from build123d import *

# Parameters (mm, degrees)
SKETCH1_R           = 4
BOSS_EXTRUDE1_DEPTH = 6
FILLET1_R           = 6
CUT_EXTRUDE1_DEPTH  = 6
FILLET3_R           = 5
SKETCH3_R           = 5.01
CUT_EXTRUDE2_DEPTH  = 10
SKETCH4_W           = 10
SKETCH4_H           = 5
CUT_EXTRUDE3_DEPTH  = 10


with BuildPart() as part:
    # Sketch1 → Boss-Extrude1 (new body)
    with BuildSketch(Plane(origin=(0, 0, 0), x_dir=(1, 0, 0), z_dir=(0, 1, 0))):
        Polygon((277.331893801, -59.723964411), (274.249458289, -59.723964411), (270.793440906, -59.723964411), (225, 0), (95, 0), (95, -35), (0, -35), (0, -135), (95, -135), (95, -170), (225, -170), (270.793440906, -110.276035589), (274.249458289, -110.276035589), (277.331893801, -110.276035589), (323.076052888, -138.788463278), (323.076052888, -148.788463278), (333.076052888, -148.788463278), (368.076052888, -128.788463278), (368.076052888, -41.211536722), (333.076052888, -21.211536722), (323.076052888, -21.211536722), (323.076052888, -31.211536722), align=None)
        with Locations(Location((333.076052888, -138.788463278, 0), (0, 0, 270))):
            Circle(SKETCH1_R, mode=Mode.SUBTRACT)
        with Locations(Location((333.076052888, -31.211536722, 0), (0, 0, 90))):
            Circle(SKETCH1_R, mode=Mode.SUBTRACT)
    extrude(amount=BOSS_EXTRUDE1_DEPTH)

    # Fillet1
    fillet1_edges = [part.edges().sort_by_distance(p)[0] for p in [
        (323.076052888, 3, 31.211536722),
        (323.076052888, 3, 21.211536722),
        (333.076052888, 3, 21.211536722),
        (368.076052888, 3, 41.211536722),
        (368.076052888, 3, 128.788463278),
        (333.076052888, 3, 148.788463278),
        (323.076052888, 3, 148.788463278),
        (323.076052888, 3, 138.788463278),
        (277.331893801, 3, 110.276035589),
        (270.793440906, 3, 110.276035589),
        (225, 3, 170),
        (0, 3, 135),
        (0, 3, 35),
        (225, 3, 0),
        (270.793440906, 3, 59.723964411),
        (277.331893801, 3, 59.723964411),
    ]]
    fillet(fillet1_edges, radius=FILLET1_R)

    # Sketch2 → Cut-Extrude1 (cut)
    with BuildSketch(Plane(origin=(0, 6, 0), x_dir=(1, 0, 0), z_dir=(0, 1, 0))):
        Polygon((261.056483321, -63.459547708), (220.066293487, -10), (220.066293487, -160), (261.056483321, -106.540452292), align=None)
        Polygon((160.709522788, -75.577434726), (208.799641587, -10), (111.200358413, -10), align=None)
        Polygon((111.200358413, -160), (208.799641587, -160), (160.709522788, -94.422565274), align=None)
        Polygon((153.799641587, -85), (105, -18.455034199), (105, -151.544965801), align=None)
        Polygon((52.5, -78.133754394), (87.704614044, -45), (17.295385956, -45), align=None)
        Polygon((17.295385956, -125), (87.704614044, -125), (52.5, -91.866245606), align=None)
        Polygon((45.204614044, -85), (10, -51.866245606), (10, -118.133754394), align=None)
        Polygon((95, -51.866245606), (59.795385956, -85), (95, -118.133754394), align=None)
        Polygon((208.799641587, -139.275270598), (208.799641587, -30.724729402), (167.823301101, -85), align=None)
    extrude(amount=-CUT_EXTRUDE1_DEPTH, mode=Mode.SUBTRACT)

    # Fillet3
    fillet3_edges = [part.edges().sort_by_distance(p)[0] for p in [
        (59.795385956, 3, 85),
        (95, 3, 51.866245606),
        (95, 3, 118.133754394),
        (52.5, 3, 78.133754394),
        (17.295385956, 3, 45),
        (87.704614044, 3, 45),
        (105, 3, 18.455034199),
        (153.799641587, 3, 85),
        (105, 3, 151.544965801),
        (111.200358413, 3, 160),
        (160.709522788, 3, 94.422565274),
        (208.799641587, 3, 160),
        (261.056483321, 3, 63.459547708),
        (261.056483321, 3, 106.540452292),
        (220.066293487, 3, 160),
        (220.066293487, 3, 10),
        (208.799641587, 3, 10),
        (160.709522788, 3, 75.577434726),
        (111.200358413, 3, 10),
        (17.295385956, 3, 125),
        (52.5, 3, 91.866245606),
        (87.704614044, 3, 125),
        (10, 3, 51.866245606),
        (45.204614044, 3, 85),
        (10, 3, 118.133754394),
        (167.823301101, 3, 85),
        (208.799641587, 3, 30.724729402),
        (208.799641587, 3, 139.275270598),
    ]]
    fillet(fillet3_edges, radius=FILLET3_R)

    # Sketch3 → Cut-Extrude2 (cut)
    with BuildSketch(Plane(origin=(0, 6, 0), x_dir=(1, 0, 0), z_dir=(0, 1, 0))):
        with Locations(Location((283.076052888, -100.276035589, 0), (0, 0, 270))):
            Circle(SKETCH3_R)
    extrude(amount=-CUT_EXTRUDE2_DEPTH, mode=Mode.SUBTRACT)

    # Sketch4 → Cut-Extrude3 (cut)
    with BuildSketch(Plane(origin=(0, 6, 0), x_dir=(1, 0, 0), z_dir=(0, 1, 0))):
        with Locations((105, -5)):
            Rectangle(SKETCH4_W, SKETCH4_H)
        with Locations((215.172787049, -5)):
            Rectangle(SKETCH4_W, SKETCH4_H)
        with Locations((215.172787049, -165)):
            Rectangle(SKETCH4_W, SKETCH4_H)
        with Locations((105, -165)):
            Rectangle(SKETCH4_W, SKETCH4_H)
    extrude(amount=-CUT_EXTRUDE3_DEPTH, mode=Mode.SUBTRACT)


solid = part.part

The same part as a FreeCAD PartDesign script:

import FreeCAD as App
import Part
import Sketcher
from FreeCAD import Vector
Q = App.Units.Quantity


def edges_at(feature, points):
    """Names of the edges that pass closest to the given points."""
    edges = feature.Shape.Edges
    near = lambda p: min(range(len(edges)), key=lambda i: edges[i].distToShape(Part.Vertex(*p))[0])
    return sorted({f"Edge{near(p) + 1}" for p in points})

doc = App.newDocument("Part")
body = doc.addObject("PartDesign::Body", "Body")

sketch1 = doc.addObject("Sketcher::SketchObject", "Sketch")
body.addObject(sketch1)
sketch1.AttachmentSupport = (doc.XZ_Plane, [""])
sketch1.MapMode = "FlatFace"
sketch1.addGeometry(Part.LineSegment(Vector(277.3, 59.7, 0), Vector(270.8, 59.7, 0)), False)
sketch1.addGeometry(Part.LineSegment(Vector(270.8, 59.7, 0), Vector(225, 0, 0)), False)
sketch1.addGeometry(Part.LineSegment(Vector(225, 0, 0), Vector(95, 0, 0)), False)
sketch1.addGeometry(Part.LineSegment(Vector(95, 0, 0), Vector(95, 35, 0)), False)
sketch1.addGeometry(Part.LineSegment(Vector(95, 35, 0), Vector(0, 35, 0)), False)
sketch1.addGeometry(Part.LineSegment(Vector(0, 35, 0), Vector(0, 135, 0)), False)
sketch1.addGeometry(Part.LineSegment(Vector(0, 135, 0), Vector(95, 135, 0)), False)
sketch1.addGeometry(Part.LineSegment(Vector(95, 135, 0), Vector(95, 170, 0)), False)
sketch1.addGeometry(Part.LineSegment(Vector(95, 170, 0), Vector(225, 170, 0)), False)
sketch1.addGeometry(Part.LineSegment(Vector(225, 170, 0), Vector(270.8, 110.3, 0)), False)
sketch1.addGeometry(Part.LineSegment(Vector(270.8, 110.3, 0), Vector(277.3, 110.3, 0)), False)
sketch1.addGeometry(Part.LineSegment(Vector(277.3, 110.3, 0), Vector(323.1, 138.8, 0)), False)
sketch1.addGeometry(Part.LineSegment(Vector(323.1, 138.8, 0), Vector(323.1, 148.8, 0)), False)
sketch1.addGeometry(Part.LineSegment(Vector(323.1, 148.8, 0), Vector(333.1, 148.8, 0)), False)
sketch1.addGeometry(Part.LineSegment(Vector(333.1, 148.8, 0), Vector(368.1, 128.8, 0)), False)
sketch1.addGeometry(Part.LineSegment(Vector(368.1, 128.8, 0), Vector(368.1, 41.2, 0)), False)
sketch1.addGeometry(Part.LineSegment(Vector(368.1, 41.2, 0), Vector(333.1, 21.2, 0)), False)
sketch1.addGeometry(Part.LineSegment(Vector(333.1, 21.2, 0), Vector(323.1, 21.2, 0)), False)
sketch1.addGeometry(Part.LineSegment(Vector(323.1, 21.2, 0), Vector(323.1, 31.2, 0)), False)
sketch1.addGeometry(Part.LineSegment(Vector(323.1, 31.2, 0), Vector(277.3, 59.7, 0)), False)
sketch1.addGeometry(Part.Circle(Vector(333.1, 138.8, 0), Vector(0, 0, 1), 4), False)
sketch1.addGeometry(Part.Circle(Vector(333.1, 31.2, 0), Vector(0, 0, 1), 4), False)
sketch1.addConstraint(Sketcher.Constraint("Coincident", 0, 2, 1, 1))
sketch1.addConstraint(Sketcher.Constraint("Coincident", 1, 2, 2, 1))
sketch1.addConstraint(Sketcher.Constraint("Coincident", 2, 2, 3, 1))
sketch1.addConstraint(Sketcher.Constraint("Coincident", 3, 2, 4, 1))
sketch1.addConstraint(Sketcher.Constraint("Coincident", 4, 2, 5, 1))
sketch1.addConstraint(Sketcher.Constraint("Coincident", 5, 2, 6, 1))
sketch1.addConstraint(Sketcher.Constraint("Coincident", 6, 2, 7, 1))
sketch1.addConstraint(Sketcher.Constraint("Coincident", 7, 2, 8, 1))
sketch1.addConstraint(Sketcher.Constraint("Coincident", 8, 2, 9, 1))
sketch1.addConstraint(Sketcher.Constraint("Coincident", 9, 2, 10, 1))
sketch1.addConstraint(Sketcher.Constraint("Coincident", 10, 2, 11, 1))
sketch1.addConstraint(Sketcher.Constraint("Coincident", 11, 2, 12, 1))
sketch1.addConstraint(Sketcher.Constraint("Coincident", 12, 2, 13, 1))
sketch1.addConstraint(Sketcher.Constraint("Coincident", 13, 2, 14, 1))
sketch1.addConstraint(Sketcher.Constraint("Coincident", 14, 2, 15, 1))
sketch1.addConstraint(Sketcher.Constraint("Coincident", 15, 2, 16, 1))
sketch1.addConstraint(Sketcher.Constraint("Coincident", 16, 2, 17, 1))
sketch1.addConstraint(Sketcher.Constraint("Coincident", 17, 2, 18, 1))
sketch1.addConstraint(Sketcher.Constraint("Coincident", 18, 2, 19, 1))
sketch1.addConstraint(Sketcher.Constraint("Coincident", 19, 2, 0, 1))
sketch1.addConstraint(Sketcher.Constraint("Horizontal", 0))
sketch1.addConstraint(Sketcher.Constraint("Horizontal", 2))
sketch1.addConstraint(Sketcher.Constraint("Vertical", 3))
sketch1.addConstraint(Sketcher.Constraint("Horizontal", 4))
sketch1.addConstraint(Sketcher.Constraint("Vertical", 5))
sketch1.addConstraint(Sketcher.Constraint("Horizontal", 6))
sketch1.addConstraint(Sketcher.Constraint("Vertical", 7))
sketch1.addConstraint(Sketcher.Constraint("Horizontal", 8))
sketch1.addConstraint(Sketcher.Constraint("Horizontal", 10))
sketch1.addConstraint(Sketcher.Constraint("Vertical", 12))
sketch1.addConstraint(Sketcher.Constraint("Horizontal", 13))
sketch1.addConstraint(Sketcher.Constraint("Vertical", 15))
sketch1.addConstraint(Sketcher.Constraint("Horizontal", 17))
sketch1.addConstraint(Sketcher.Constraint("Vertical", 18))
sketch1.addConstraint(Sketcher.Constraint("Equal", 20, 21))
sketch1.addConstraint(Sketcher.Constraint("PointOnObject", 1, 2, -1))
sketch1.addConstraint(Sketcher.Constraint("PointOnObject", 4, 2, -2))
sketch1.addConstraint(Sketcher.Constraint("Horizontal", 20, 3, 11, 2))
sketch1.addConstraint(Sketcher.Constraint("Horizontal", 21, 3, 18, 2))
sketch1.addConstraint(Sketcher.Constraint("Vertical", 20, 3, 21, 3))
sketch1.addConstraint(Sketcher.Constraint("Vertical", 3, 2, 6, 2))
sketch1.addConstraint(Sketcher.Constraint("Vertical", 1, 2, 8, 2))
sketch1.addConstraint(Sketcher.Constraint("Vertical", 0, 2, 9, 2))
sketch1.addConstraint(Sketcher.Constraint("Vertical", 21, 3, 13, 2))
sketch1.addConstraint(Sketcher.Constraint("Vertical", 13, 2, 16, 2))
sketch1.addConstraint(Sketcher.Constraint("Vertical", 12, 2, 17, 2))
sketch1.addConstraint(Sketcher.Constraint("Vertical", 10, 2, 19, 2))
sketch1.addConstraint(Sketcher.Constraint("Equal", 3, 7))
sketch1.addConstraint(Sketcher.Constraint("Equal", 17, 12))
sketch1.addConstraint(Sketcher.Constraint("Equal", 12, 18))
sketch1.addConstraint(Sketcher.Constraint("Equal", 1, 9))
sketch1.addConstraint(Sketcher.Constraint("Equal", 14, 16))
sketch1.addConstraint(Sketcher.Constraint("Equal", 11, 19))
sketch1.addConstraint(Sketcher.Constraint("Diameter", 20, Q("8 mm")))
sketch1.addConstraint(Sketcher.Constraint("DistanceX", 2, 2, 2, 1, Q("130 mm")))
sketch1.addConstraint(Sketcher.Constraint("DistanceX", 4, 2, 4, 1, Q("95 mm")))
sketch1.addConstraint(Sketcher.Constraint("DistanceX", 13, 1, 13, 2, Q("10 mm")))
sketch1.addConstraint(Sketcher.Constraint("DistanceY", 3, 1, 3, 2, Q("35 mm")))
sketch1.addConstraint(Sketcher.Constraint("DistanceY", 5, 1, 5, 2, Q("100 mm")))
sketch1.addConstraint(Sketcher.Constraint("DistanceX", 20, 3, 14, 2, Q("35 mm")))
sketch1.addConstraint(Sketcher.Constraint("DistanceY", 14, 2, 20, 3, Q("10 mm")))
sketch1.addConstraint(Sketcher.Constraint("DistanceY", 0, 2, 20, 3, Q("79.064499 mm")))
sketch1.addConstraint(Sketcher.Constraint("DistanceX", 0, 2, 0, 1, Q("6.538453 mm")))
sketch1.addConstraint(Sketcher.Constraint("DistanceY", 15, 2, 15, 1, Q("87.576927 mm")))
sketch1.addConstraint(Sketcher.Constraint("DistanceX", -1, 1, 0, 2, Q("270.793441 mm")))
sketch1.addConstraint(Sketcher.Constraint("DistanceX", 0, 2, 21, 3, Q("62.282612 mm")))
pad1 = doc.addObject("PartDesign::Pad", "Pad")
body.addObject(pad1)
pad1.Profile = sketch1
pad1.Length = 6
pad1.Reversed = True
doc.recompute()

fillet = doc.addObject("PartDesign::Fillet", "Fillet")
body.addObject(fillet)
fillet.Base = (pad1, edges_at(pad1, [
    (323.076, 3, 31.212),
    (323.076, 3, 21.212),
    (333.076, 3, 21.212),
    (368.076, 3, 41.212),
    (368.076, 3, 128.788),
    (333.076, 3, 148.788),
    (323.076, 3, 148.788),
    (323.076, 3, 138.788),
    (277.332, 3, 110.276),
    (270.793, 3, 110.276),
    (225, 3, 170),
    (0, 3, 135),
    (0, 3, 35),
    (225, 3, 0),
    (270.793, 3, 59.724),
    (277.332, 3, 59.724),
]))
fillet.Radius = 6

sketch2 = doc.addObject("Sketcher::SketchObject", "Sketch001")
body.addObject(sketch2)
sketch2.AttachmentSupport = (doc.XZ_Plane, [""])
sketch2.MapMode = "FlatFace"
sketch2.AttachmentOffset = App.Placement(Vector(0, 0, -6), App.Rotation())
sketch2.addGeometry(Part.LineSegment(Vector(261, 63, 0), Vector(220, 10, 0)), False)
sketch2.addGeometry(Part.LineSegment(Vector(220, 10, 0), Vector(220, 160, 0)), False)
sketch2.addGeometry(Part.LineSegment(Vector(220, 160, 0), Vector(261, 107, 0)), False)
sketch2.addGeometry(Part.LineSegment(Vector(261, 107, 0), Vector(261, 63, 0)), False)
sketch2.addGeometry(Part.LineSegment(Vector(161, 76, 0), Vector(209, 10, 0)), False)
sketch2.addGeometry(Part.LineSegment(Vector(209, 10, 0), Vector(111, 10, 0)), False)
sketch2.addGeometry(Part.LineSegment(Vector(111, 10, 0), Vector(161, 76, 0)), False)
sketch2.addGeometry(Part.LineSegment(Vector(111, 160, 0), Vector(209, 160, 0)), False)
sketch2.addGeometry(Part.LineSegment(Vector(209, 160, 0), Vector(161, 94, 0)), False)
sketch2.addGeometry(Part.LineSegment(Vector(161, 94, 0), Vector(111, 160, 0)), False)
sketch2.addGeometry(Part.LineSegment(Vector(154, 85, 0), Vector(105, 18, 0)), False)
sketch2.addGeometry(Part.LineSegment(Vector(105, 18, 0), Vector(105, 152, 0)), False)
sketch2.addGeometry(Part.LineSegment(Vector(105, 152, 0), Vector(154, 85, 0)), False)
sketch2.addGeometry(Part.LineSegment(Vector(52, 78, 0), Vector(88, 45, 0)), False)
sketch2.addGeometry(Part.LineSegment(Vector(88, 45, 0), Vector(17, 45, 0)), False)
sketch2.addGeometry(Part.LineSegment(Vector(17, 45, 0), Vector(52, 78, 0)), False)
sketch2.addGeometry(Part.LineSegment(Vector(17, 125, 0), Vector(88, 125, 0)), False)
sketch2.addGeometry(Part.LineSegment(Vector(88, 125, 0), Vector(52, 92, 0)), False)
sketch2.addGeometry(Part.LineSegment(Vector(52, 92, 0), Vector(17, 125, 0)), False)
sketch2.addGeometry(Part.LineSegment(Vector(45, 85, 0), Vector(10, 52, 0)), False)
sketch2.addGeometry(Part.LineSegment(Vector(10, 52, 0), Vector(10, 118, 0)), False)
sketch2.addGeometry(Part.LineSegment(Vector(10, 118, 0), Vector(45, 85, 0)), False)
sketch2.addGeometry(Part.LineSegment(Vector(95, 52, 0), Vector(60, 85, 0)), False)
sketch2.addGeometry(Part.LineSegment(Vector(60, 85, 0), Vector(95, 118, 0)), False)
sketch2.addGeometry(Part.LineSegment(Vector(95, 118, 0), Vector(95, 52, 0)), False)
sketch2.addGeometry(Part.LineSegment(Vector(209, 139, 0), Vector(209, 31, 0)), False)
sketch2.addGeometry(Part.LineSegment(Vector(209, 31, 0), Vector(168, 85, 0)), False)
sketch2.addGeometry(Part.LineSegment(Vector(168, 85, 0), Vector(209, 139, 0)), False)
sketch2.addConstraint(Sketcher.Constraint("Coincident", 0, 2, 1, 1))
sketch2.addConstraint(Sketcher.Constraint("Coincident", 1, 2, 2, 1))
sketch2.addConstraint(Sketcher.Constraint("Coincident", 2, 2, 3, 1))
sketch2.addConstraint(Sketcher.Constraint("Coincident", 3, 2, 0, 1))
sketch2.addConstraint(Sketcher.Constraint("Coincident", 4, 2, 5, 1))
sketch2.addConstraint(Sketcher.Constraint("Coincident", 5, 2, 6, 1))
sketch2.addConstraint(Sketcher.Constraint("Coincident", 6, 2, 4, 1))
sketch2.addConstraint(Sketcher.Constraint("Coincident", 7, 2, 8, 1))
sketch2.addConstraint(Sketcher.Constraint("Coincident", 8, 2, 9, 1))
sketch2.addConstraint(Sketcher.Constraint("Coincident", 9, 2, 7, 1))
sketch2.addConstraint(Sketcher.Constraint("Coincident", 10, 2, 11, 1))
sketch2.addConstraint(Sketcher.Constraint("Coincident", 11, 2, 12, 1))
sketch2.addConstraint(Sketcher.Constraint("Coincident", 12, 2, 10, 1))
sketch2.addConstraint(Sketcher.Constraint("Coincident", 13, 2, 14, 1))
sketch2.addConstraint(Sketcher.Constraint("Coincident", 14, 2, 15, 1))
sketch2.addConstraint(Sketcher.Constraint("Coincident", 15, 2, 13, 1))
sketch2.addConstraint(Sketcher.Constraint("Coincident", 16, 2, 17, 1))
sketch2.addConstraint(Sketcher.Constraint("Coincident", 17, 2, 18, 1))
sketch2.addConstraint(Sketcher.Constraint("Coincident", 18, 2, 16, 1))
sketch2.addConstraint(Sketcher.Constraint("Coincident", 19, 2, 20, 1))
sketch2.addConstraint(Sketcher.Constraint("Coincident", 20, 2, 21, 1))
sketch2.addConstraint(Sketcher.Constraint("Coincident", 21, 2, 19, 1))
sketch2.addConstraint(Sketcher.Constraint("Coincident", 22, 2, 23, 1))
sketch2.addConstraint(Sketcher.Constraint("Coincident", 23, 2, 24, 1))
sketch2.addConstraint(Sketcher.Constraint("Coincident", 24, 2, 22, 1))
sketch2.addConstraint(Sketcher.Constraint("Coincident", 25, 2, 26, 1))
sketch2.addConstraint(Sketcher.Constraint("Coincident", 26, 2, 27, 1))
sketch2.addConstraint(Sketcher.Constraint("Coincident", 27, 2, 25, 1))
sketch2.addConstraint(Sketcher.Constraint("Vertical", 1))
sketch2.addConstraint(Sketcher.Constraint("Vertical", 3))
sketch2.addConstraint(Sketcher.Constraint("Horizontal", 5))
sketch2.addConstraint(Sketcher.Constraint("Horizontal", 7))
sketch2.addConstraint(Sketcher.Constraint("Vertical", 11))
sketch2.addConstraint(Sketcher.Constraint("Horizontal", 14))
sketch2.addConstraint(Sketcher.Constraint("Horizontal", 16))
sketch2.addConstraint(Sketcher.Constraint("Vertical", 20))
sketch2.addConstraint(Sketcher.Constraint("Vertical", 24))
sketch2.addConstraint(Sketcher.Constraint("Vertical", 25))
sketch2.addConstraint(Sketcher.Constraint("Parallel", 8, 10))
sketch2.addConstraint(Sketcher.Constraint("Parallel", 4, 12))
sketch2.addConstraint(Sketcher.Constraint("Parallel", 15, 17))
sketch2.addConstraint(Sketcher.Constraint("Parallel", 13, 18))
sketch2.addConstraint(Sketcher.Constraint("Parallel", 17, 19))
sketch2.addConstraint(Sketcher.Constraint("Parallel", 18, 21))
sketch2.addConstraint(Sketcher.Constraint("Parallel", 21, 22))
sketch2.addConstraint(Sketcher.Constraint("Parallel", 19, 23))
sketch2.addConstraint(Sketcher.Constraint("Parallel", 9, 26))
sketch2.addConstraint(Sketcher.Constraint("Parallel", 6, 27))
sketch2.addConstraint(Sketcher.Constraint("Horizontal", 0, 2, 4, 2))
sketch2.addConstraint(Sketcher.Constraint("Horizontal", 1, 2, 7, 2))
sketch2.addConstraint(Sketcher.Constraint("Horizontal", 12, 2, 21, 2))
sketch2.addConstraint(Sketcher.Constraint("Horizontal", 21, 2, 22, 2))
sketch2.addConstraint(Sketcher.Constraint("Horizontal", 20, 2, 23, 2))
sketch2.addConstraint(Sketcher.Constraint("Horizontal", 19, 2, 24, 2))
sketch2.addConstraint(Sketcher.Constraint("Horizontal", 22, 2, 26, 2))
sketch2.addConstraint(Sketcher.Constraint("Vertical", 4, 2, 7, 2))
sketch2.addConstraint(Sketcher.Constraint("Vertical", 6, 2, 8, 2))
sketch2.addConstraint(Sketcher.Constraint("Vertical", 5, 2, 9, 2))
sketch2.addConstraint(Sketcher.Constraint("Vertical", 13, 2, 16, 2))
sketch2.addConstraint(Sketcher.Constraint("Vertical", 15, 2, 17, 2))
sketch2.addConstraint(Sketcher.Constraint("Vertical", 7, 2, 25, 2))
sketch2.addConstraint(Sketcher.Constraint("Equal", 0, 2))
sketch2.addConstraint(Sketcher.Constraint("Equal", 4, 8))
sketch2.addConstraint(Sketcher.Constraint("Equal", 18, 19))
sketch2.addConstraint(Sketcher.Constraint("DistanceY", 1, 1, 1, 2, Q("150 mm")))
sketch2.addConstraint(Sketcher.Constraint("DistanceY", -1, 1, 0, 2, Q("10 mm")))
sketch2.addConstraint(Sketcher.Constraint("DistanceX", -1, 1, 10, 2, Q("105 mm")))
sketch2.addConstraint(Sketcher.Constraint("DistanceY", -1, 1, 12, 2, Q("85 mm")))
sketch2.addConstraint(Sketcher.Constraint("DistanceY", -1, 1, 13, 2, Q("45 mm")))
sketch2.addConstraint(Sketcher.Constraint("DistanceY", -1, 1, 16, 2, Q("125 mm")))
sketch2.addConstraint(Sketcher.Constraint("DistanceX", -1, 1, 19, 2, Q("10 mm")))
sketch2.addConstraint(Sketcher.Constraint("DistanceX", -1, 1, 23, 2, Q("95 mm")))
sketch2.addConstraint(Sketcher.Constraint("DistanceX", 12, 2, 25, 2, Q("55 mm")))
sketch2.addConstraint(Sketcher.Constraint("DistanceX", -1, 1, 15, 2, Q("52.5 mm")))
sketch2.addConstraint(Sketcher.Constraint("DistanceX", 14, 2, 14, 1, Q("70.409228 mm")))
sketch2.addConstraint(Sketcher.Constraint("DistanceY", 11, 1, 11, 2, Q("133.089932 mm")))
sketch2.addConstraint(Sketcher.Constraint("DistanceY", 20, 1, 20, 2, Q("66.267509 mm")))
sketch2.addConstraint(Sketcher.Constraint("DistanceY", 25, 2, 25, 1, Q("108.550541 mm")))
sketch2.addConstraint(Sketcher.Constraint("DistanceX", -1, 1, 26, 2, Q("167.823301 mm")))
sketch2.addConstraint(Sketcher.Constraint("DistanceY", 10, 2, 6, 2, Q("57.122401 mm")))
sketch2.addConstraint(Sketcher.Constraint("Distance", 0, Q("67.365562 mm")))
sketch2.addConstraint(Sketcher.Constraint("Distance", 4, Q("81.32072 mm")))
sketch2.addConstraint(Sketcher.Constraint("DistanceY", 3, 2, 3, 1, Q("43.080905 mm")))
sketch2.addConstraint(Sketcher.Constraint("DistanceX", 4, 2, 0, 2, Q("11.266652 mm")))
pocket1 = doc.addObject("PartDesign::Pocket", "Pocket")
body.addObject(pocket1)
pocket1.Profile = sketch2
pocket1.Length = 6
pocket1.Reversed = True
doc.recompute()

fillet2 = doc.addObject("PartDesign::Fillet", "Fillet001")
body.addObject(fillet2)
fillet2.Base = (pocket1, edges_at(pocket1, [
    (59.795, 3, 85),
    (95, 3, 51.866),
    (95, 3, 118.134),
    (52.5, 3, 78.134),
    (17.295, 3, 45),
    (87.705, 3, 45),
    (105, 3, 18.455),
    (153.8, 3, 85),
    (105, 3, 151.545),
    (111.2, 3, 160),
    (160.71, 3, 94.423),
    (208.8, 3, 160),
    (261.056, 3, 63.46),
    (261.056, 3, 106.54),
    (220.066, 3, 160),
    (220.066, 3, 10),
    (208.8, 3, 10),
    (160.71, 3, 75.577),
    (111.2, 3, 10),
    (17.295, 3, 125),
    (52.5, 3, 91.866),
    (87.705, 3, 125),
    (10, 3, 51.866),
    (45.205, 3, 85),
    (10, 3, 118.134),
    (167.823, 3, 85),
    (208.8, 3, 30.725),
    (208.8, 3, 139.275),
]))
fillet2.Radius = 5

sketch3 = doc.addObject("Sketcher::SketchObject", "Sketch002")
body.addObject(sketch3)
sketch3.AttachmentSupport = (doc.XZ_Plane, [""])
sketch3.MapMode = "FlatFace"
sketch3.AttachmentOffset = App.Placement(Vector(0, 0, -6), App.Rotation())
sketch3.addGeometry(Part.Circle(Vector(283, 100, 0), Vector(0, 0, 1), 5), False)
sketch3.addConstraint(Sketcher.Constraint("Diameter", 0, Q("10.02 mm")))
sketch3.addConstraint(Sketcher.Constraint("DistanceX", -1, 1, 0, 3, Q("283.076053 mm")))
sketch3.addConstraint(Sketcher.Constraint("DistanceY", -1, 1, 0, 3, Q("100.276036 mm")))
pocket2 = doc.addObject("PartDesign::Pocket", "Pocket001")
body.addObject(pocket2)
pocket2.Profile = sketch3
pocket2.Length = 10
pocket2.Reversed = True

sketch4 = doc.addObject("Sketcher::SketchObject", "Sketch003")
body.addObject(sketch4)
sketch4.AttachmentSupport = (doc.XZ_Plane, [""])
sketch4.MapMode = "FlatFace"
sketch4.AttachmentOffset = App.Placement(Vector(0, 0, -6), App.Rotation())
sketch4.addGeometry(Part.LineSegment(Vector(100, 2, 0), Vector(100, 8, 0)), False)
sketch4.addGeometry(Part.LineSegment(Vector(100, 8, 0), Vector(110, 8, 0)), False)
sketch4.addGeometry(Part.LineSegment(Vector(110, 8, 0), Vector(110, 2, 0)), False)
sketch4.addGeometry(Part.LineSegment(Vector(110, 2, 0), Vector(100, 2, 0)), False)
sketch4.addGeometry(Part.LineSegment(Vector(210, 2, 0), Vector(210, 8, 0)), False)
sketch4.addGeometry(Part.LineSegment(Vector(210, 8, 0), Vector(220, 8, 0)), False)
sketch4.addGeometry(Part.LineSegment(Vector(220, 8, 0), Vector(220, 2, 0)), False)
sketch4.addGeometry(Part.LineSegment(Vector(220, 2, 0), Vector(210, 2, 0)), False)
sketch4.addGeometry(Part.LineSegment(Vector(210, 162, 0), Vector(210, 168, 0)), False)
sketch4.addGeometry(Part.LineSegment(Vector(210, 168, 0), Vector(220, 168, 0)), False)
sketch4.addGeometry(Part.LineSegment(Vector(220, 168, 0), Vector(220, 162, 0)), False)
sketch4.addGeometry(Part.LineSegment(Vector(220, 162, 0), Vector(210, 162, 0)), False)
sketch4.addGeometry(Part.LineSegment(Vector(100, 162, 0), Vector(100, 168, 0)), False)
sketch4.addGeometry(Part.LineSegment(Vector(100, 168, 0), Vector(110, 168, 0)), False)
sketch4.addGeometry(Part.LineSegment(Vector(110, 168, 0), Vector(110, 162, 0)), False)
sketch4.addGeometry(Part.LineSegment(Vector(110, 162, 0), Vector(100, 162, 0)), False)
sketch4.addConstraint(Sketcher.Constraint("Coincident", 0, 2, 1, 1))
sketch4.addConstraint(Sketcher.Constraint("Coincident", 1, 2, 2, 1))
sketch4.addConstraint(Sketcher.Constraint("Coincident", 2, 2, 3, 1))
sketch4.addConstraint(Sketcher.Constraint("Coincident", 3, 2, 0, 1))
sketch4.addConstraint(Sketcher.Constraint("Coincident", 4, 2, 5, 1))
sketch4.addConstraint(Sketcher.Constraint("Coincident", 5, 2, 6, 1))
sketch4.addConstraint(Sketcher.Constraint("Coincident", 6, 2, 7, 1))
sketch4.addConstraint(Sketcher.Constraint("Coincident", 7, 2, 4, 1))
sketch4.addConstraint(Sketcher.Constraint("Coincident", 8, 2, 9, 1))
sketch4.addConstraint(Sketcher.Constraint("Coincident", 9, 2, 10, 1))
sketch4.addConstraint(Sketcher.Constraint("Coincident", 10, 2, 11, 1))
sketch4.addConstraint(Sketcher.Constraint("Coincident", 11, 2, 8, 1))
sketch4.addConstraint(Sketcher.Constraint("Coincident", 12, 2, 13, 1))
sketch4.addConstraint(Sketcher.Constraint("Coincident", 13, 2, 14, 1))
sketch4.addConstraint(Sketcher.Constraint("Coincident", 14, 2, 15, 1))
sketch4.addConstraint(Sketcher.Constraint("Coincident", 15, 2, 12, 1))
sketch4.addConstraint(Sketcher.Constraint("Vertical", 0))
sketch4.addConstraint(Sketcher.Constraint("Horizontal", 1))
sketch4.addConstraint(Sketcher.Constraint("Vertical", 2))
sketch4.addConstraint(Sketcher.Constraint("Horizontal", 3))
sketch4.addConstraint(Sketcher.Constraint("Vertical", 4))
sketch4.addConstraint(Sketcher.Constraint("Horizontal", 5))
sketch4.addConstraint(Sketcher.Constraint("Vertical", 6))
sketch4.addConstraint(Sketcher.Constraint("Horizontal", 7))
sketch4.addConstraint(Sketcher.Constraint("Vertical", 8))
sketch4.addConstraint(Sketcher.Constraint("Horizontal", 9))
sketch4.addConstraint(Sketcher.Constraint("Vertical", 10))
sketch4.addConstraint(Sketcher.Constraint("Horizontal", 11))
sketch4.addConstraint(Sketcher.Constraint("Vertical", 12))
sketch4.addConstraint(Sketcher.Constraint("Horizontal", 13))
sketch4.addConstraint(Sketcher.Constraint("Vertical", 14))
sketch4.addConstraint(Sketcher.Constraint("Horizontal", 15))
sketch4.addConstraint(Sketcher.Constraint("Horizontal", 1, 2, 4, 2))
sketch4.addConstraint(Sketcher.Constraint("Horizontal", 3, 2, 6, 2))
sketch4.addConstraint(Sketcher.Constraint("Horizontal", 9, 2, 12, 2))
sketch4.addConstraint(Sketcher.Constraint("Horizontal", 11, 2, 14, 2))
sketch4.addConstraint(Sketcher.Constraint("Vertical", 7, 2, 8, 2))
sketch4.addConstraint(Sketcher.Constraint("Vertical", 6, 2, 9, 2))
sketch4.addConstraint(Sketcher.Constraint("Vertical", 3, 2, 12, 2))
sketch4.addConstraint(Sketcher.Constraint("Vertical", 2, 2, 13, 2))
sketch4.addConstraint(Sketcher.Constraint("Equal", 3, 5))
sketch4.addConstraint(Sketcher.Constraint("Equal", 6, 8))
sketch4.addConstraint(Sketcher.Constraint("DistanceX", 1, 1, 1, 2, Q("10 mm")))
sketch4.addConstraint(Sketcher.Constraint("DistanceY", 0, 1, 0, 2, Q("5 mm")))
sketch4.addConstraint(Sketcher.Constraint("DistanceX", -1, 1, 0, 2, Q("100 mm")))
sketch4.addConstraint(Sketcher.Constraint("DistanceY", 4, 2, 8, 2, Q("160 mm")))
sketch4.addConstraint(Sketcher.Constraint("DistanceY", -1, 1, 0, 2, Q("7.5 mm")))
sketch4.addConstraint(Sketcher.Constraint("DistanceX", -1, 1, 4, 2, Q("210.172787 mm")))
pocket3 = doc.addObject("PartDesign::Pocket", "Pocket002")
body.addObject(pocket3)
pocket3.Profile = sketch4
pocket3.Length = 10
pocket3.Reversed = True

doc.recompute()
